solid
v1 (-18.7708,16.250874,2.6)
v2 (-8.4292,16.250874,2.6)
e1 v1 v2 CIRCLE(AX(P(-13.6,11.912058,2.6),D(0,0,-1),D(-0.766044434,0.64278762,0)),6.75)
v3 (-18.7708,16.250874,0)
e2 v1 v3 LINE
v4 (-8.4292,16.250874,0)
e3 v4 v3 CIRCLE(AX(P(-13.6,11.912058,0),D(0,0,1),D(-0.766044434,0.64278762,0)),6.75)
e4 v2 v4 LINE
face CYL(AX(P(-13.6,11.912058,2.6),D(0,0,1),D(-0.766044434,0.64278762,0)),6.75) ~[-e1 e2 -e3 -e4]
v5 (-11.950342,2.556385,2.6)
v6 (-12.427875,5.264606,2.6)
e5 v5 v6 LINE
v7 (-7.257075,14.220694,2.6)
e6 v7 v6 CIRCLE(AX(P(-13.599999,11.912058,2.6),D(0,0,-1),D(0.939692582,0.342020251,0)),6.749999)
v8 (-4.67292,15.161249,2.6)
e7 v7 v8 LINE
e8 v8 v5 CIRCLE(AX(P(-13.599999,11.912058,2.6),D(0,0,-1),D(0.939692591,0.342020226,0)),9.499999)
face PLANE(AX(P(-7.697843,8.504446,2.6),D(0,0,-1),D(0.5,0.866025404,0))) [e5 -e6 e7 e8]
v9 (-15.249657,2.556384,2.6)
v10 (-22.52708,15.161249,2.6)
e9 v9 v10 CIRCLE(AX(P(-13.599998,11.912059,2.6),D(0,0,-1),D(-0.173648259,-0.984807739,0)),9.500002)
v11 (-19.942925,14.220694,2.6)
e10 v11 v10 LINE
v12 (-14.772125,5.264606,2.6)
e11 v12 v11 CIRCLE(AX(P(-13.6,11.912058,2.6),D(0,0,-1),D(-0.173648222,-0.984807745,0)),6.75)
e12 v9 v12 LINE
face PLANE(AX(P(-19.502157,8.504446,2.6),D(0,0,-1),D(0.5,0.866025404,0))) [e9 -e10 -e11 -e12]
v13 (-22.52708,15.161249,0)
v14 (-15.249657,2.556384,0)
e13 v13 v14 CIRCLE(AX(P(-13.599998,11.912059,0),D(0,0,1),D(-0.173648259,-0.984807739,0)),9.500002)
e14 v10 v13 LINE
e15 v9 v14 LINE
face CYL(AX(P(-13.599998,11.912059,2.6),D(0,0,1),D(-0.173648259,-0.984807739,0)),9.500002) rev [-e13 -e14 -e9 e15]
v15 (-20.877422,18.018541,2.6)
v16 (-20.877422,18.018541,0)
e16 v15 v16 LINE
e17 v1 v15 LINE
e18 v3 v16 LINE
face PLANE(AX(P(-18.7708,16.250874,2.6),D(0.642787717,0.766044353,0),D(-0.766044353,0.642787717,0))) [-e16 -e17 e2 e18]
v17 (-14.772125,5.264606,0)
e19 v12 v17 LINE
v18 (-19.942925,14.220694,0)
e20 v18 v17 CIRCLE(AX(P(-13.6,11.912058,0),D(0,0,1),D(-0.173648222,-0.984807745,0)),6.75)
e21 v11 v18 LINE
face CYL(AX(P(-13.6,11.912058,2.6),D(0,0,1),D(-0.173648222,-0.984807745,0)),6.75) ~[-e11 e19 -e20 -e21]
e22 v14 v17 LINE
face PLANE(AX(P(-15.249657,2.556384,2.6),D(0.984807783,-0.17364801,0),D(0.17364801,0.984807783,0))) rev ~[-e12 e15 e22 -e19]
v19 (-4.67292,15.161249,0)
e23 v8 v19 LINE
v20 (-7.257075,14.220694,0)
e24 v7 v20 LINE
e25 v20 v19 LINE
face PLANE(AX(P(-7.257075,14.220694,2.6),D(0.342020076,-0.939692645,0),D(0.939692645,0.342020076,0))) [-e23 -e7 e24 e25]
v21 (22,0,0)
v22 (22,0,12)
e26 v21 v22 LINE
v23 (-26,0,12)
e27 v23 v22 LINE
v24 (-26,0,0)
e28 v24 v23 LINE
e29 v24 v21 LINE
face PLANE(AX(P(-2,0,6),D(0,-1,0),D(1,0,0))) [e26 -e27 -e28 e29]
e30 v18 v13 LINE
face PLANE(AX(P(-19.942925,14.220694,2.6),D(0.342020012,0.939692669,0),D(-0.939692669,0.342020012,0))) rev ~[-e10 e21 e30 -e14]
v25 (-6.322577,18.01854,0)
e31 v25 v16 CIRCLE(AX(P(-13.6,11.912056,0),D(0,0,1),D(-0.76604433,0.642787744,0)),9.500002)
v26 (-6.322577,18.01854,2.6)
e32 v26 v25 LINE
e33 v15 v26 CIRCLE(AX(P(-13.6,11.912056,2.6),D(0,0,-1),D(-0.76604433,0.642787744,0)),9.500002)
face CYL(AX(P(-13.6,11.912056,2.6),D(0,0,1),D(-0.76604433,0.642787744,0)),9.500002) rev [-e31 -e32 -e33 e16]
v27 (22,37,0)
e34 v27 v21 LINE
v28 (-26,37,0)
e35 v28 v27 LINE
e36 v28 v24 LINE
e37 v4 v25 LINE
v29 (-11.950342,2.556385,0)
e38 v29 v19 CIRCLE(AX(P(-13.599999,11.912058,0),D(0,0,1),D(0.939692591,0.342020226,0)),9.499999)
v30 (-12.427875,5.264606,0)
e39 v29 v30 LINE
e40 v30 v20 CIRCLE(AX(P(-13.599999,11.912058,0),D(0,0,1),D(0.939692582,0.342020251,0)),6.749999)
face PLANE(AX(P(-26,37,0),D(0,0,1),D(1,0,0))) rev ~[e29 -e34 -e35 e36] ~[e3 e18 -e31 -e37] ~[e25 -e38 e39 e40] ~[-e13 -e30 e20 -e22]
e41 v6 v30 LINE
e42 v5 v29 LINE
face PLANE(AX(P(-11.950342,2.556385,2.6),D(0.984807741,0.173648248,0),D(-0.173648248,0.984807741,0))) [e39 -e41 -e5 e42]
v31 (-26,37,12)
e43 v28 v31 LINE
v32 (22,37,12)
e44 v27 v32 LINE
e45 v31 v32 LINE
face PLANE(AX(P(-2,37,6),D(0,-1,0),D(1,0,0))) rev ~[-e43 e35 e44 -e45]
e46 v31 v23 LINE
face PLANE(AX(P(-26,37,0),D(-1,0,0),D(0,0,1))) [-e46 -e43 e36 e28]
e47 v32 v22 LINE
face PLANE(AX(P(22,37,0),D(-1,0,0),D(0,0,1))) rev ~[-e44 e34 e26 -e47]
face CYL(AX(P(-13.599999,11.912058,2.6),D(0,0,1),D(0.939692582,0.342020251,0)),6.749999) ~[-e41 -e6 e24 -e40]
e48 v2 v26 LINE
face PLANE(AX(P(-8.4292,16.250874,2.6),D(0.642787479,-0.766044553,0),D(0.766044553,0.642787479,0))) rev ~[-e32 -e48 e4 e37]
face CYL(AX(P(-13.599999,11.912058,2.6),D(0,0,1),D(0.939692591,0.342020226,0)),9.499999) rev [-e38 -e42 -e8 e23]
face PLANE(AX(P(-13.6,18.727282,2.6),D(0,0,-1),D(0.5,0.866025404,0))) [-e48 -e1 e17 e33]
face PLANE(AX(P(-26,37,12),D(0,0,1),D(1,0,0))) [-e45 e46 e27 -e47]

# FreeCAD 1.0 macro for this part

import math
import FreeCAD as App
import Part
import Sketcher

V = App.Vector
Q = App.Units.Quantity

doc = App.newDocument("Part")
body = doc.addObject("PartDesign::Body", "Body")
body.AllowCompound = True

sketch1 = doc.addObject("Sketcher::SketchObject", "Sketch")
body.addObject(sketch1)
sketch1.AttachmentSupport = (doc.XZ_Plane, [""])
sketch1.MapMode = "FlatFace"
sketch1.addGeometry([
    Part.ArcOfCircle(Part.Circle(V(0, 0, 0), V(0, 0, 1), 9.5), math.radians(40), math.radians(140)),
    Part.LineSegment(V(-7.3, 6.1, 0), V(-5.2, 4.3, 0)),
    Part.ArcOfCircle(Part.Circle(V(0, 0, 0), V(0, 0, 1), 6.7), math.radians(40), math.radians(140)),
    Part.LineSegment(V(5.2, 4.3, 0), V(7.3, 6.1, 0)),
    Part.ArcOfCircle(Part.Circle(V(0, 0, 0), V(0, 0, 1), 9.5), math.radians(160), math.radians(260)),
    Part.LineSegment(V(-1.6, -9.4, 0), V(-1.2, -6.6, 0)),
    Part.ArcOfCircle(Part.Circle(V(0, 0, 0), V(0, 0, 1), 6.7), math.radians(160), math.radians(260)),
    Part.LineSegment(V(-6.3, 2.3, 0), V(-8.9, 3.2, 0)),
    Part.ArcOfCircle(Part.Circle(V(0, 0, 0), V(0, 0, 1), 9.5), math.radians(-80), math.radians(20)),
    Part.LineSegment(V(8.9, 3.2, 0), V(6.3, 2.3, 0)),
    Part.ArcOfCircle(Part.Circle(V(0, 0, 0), V(0, 0, 1), 6.7), math.radians(-80), math.radians(20)),
    Part.LineSegment(V(1.2, -6.6, 0), V(1.6, -9.4, 0)),
], False)
sketch1.addConstraint([
    Sketcher.Constraint("Coincident", 0, 2, 1, 1),
    Sketcher.Constraint("Coincident", 1, 2, 2, 2),
    Sketcher.Constraint("Coincident", 2, 1, 3, 1),
    Sketcher.Constraint("Coincident", 3, 2, 0, 1),
    Sketcher.Constraint("Coincident", 4, 2, 5, 1),
    Sketcher.Constraint("Coincident", 5, 2, 6, 2),
    Sketcher.Constraint("Coincident", 6, 1, 7, 1),
    Sketcher.Constraint("Coincident", 7, 2, 4, 1),
    Sketcher.Constraint("Coincident", 8, 2, 9, 1),
    Sketcher.Constraint("Coincident", 9, 2, 10, 2),
    Sketcher.Constraint("Coincident", 10, 1, 11, 1),
    Sketcher.Constraint("Coincident", 11, 2, 8, 1),
    Sketcher.Constraint("Coincident", 0, 3, -1, 1),
    Sketcher.Constraint("Coincident", 2, 3, -1, 1),
    Sketcher.Constraint("Coincident", 4, 3, -1, 1),
    Sketcher.Constraint("Coincident", 6, 3, -1, 1),
    Sketcher.Constraint("Coincident", 8, 3, -1, 1),
    Sketcher.Constraint("Coincident", 10, 3, -1, 1),
    Sketcher.Constraint("Equal", 2, 6),
    Sketcher.Constraint("Equal", 4, 8),
    Sketcher.Constraint("Equal", 6, 10),
    Sketcher.Constraint("Horizontal", 1, 2, 2, 1),
    Sketcher.Constraint("Horizontal", 0, 2, 3, 2),
    Sketcher.Constraint("Horizontal", 7, 2, 8, 2),
    Sketcher.Constraint("Horizontal", 6, 1, 9, 2),
    Sketcher.Constraint("Horizontal", 5, 2, 10, 1),
    Sketcher.Constraint("Horizontal", 4, 2, 11, 2),
    Sketcher.Constraint("Equal", 3, 5),
    Sketcher.Constraint("Radius", 0, Q("9.499999 mm")),
    Sketcher.Constraint("Angle", 1, Q("-40.000004 deg")),
    Sketcher.Constraint("Angle", 5, Q("79.999992 deg")),
    Sketcher.Constraint("Angle", 7, Q("159.99999 deg")),
    Sketcher.Constraint("Radius", 2, Q("6.749999 mm")),
    Sketcher.Constraint("DistanceX", 1, 2, -1, 1, Q("5.1708 mm")),
    Sketcher.Constraint("DistanceX", 7, 2, -1, 1, Q("8.92708 mm")),
    Sketcher.Constraint("DistanceY", 10, 1, -1, 1, Q("6.647452 mm")),
])
pad1 = doc.addObject("PartDesign::Pad", "Pad")
body.addObject(pad1)
pad1.Profile = sketch1
pad1.Length = 20
body2 = doc.addObject("PartDesign::Body", "Body001")
body2.AllowCompound = True
doc.recompute()

body.Placement = App.Placement(V(12.4, 2.6, 25.087942), App.Rotation(V(0, -1, 0), 300))
boolean = doc.addObject("PartDesign::Boolean", "Boolean")
body2.addObject(boolean)
boolean.Type = "Fuse"
boolean.addObjects([body])
body3 = doc.addObject("PartDesign::Body", "Body002")

sketch2 = doc.addObject("Sketcher::SketchObject", "Sketch001")
body3.addObject(sketch2)
sketch2.AttachmentSupport = (doc.getObject("XY_Plane002"), [""])
sketch2.MapMode = "FlatFace"
sketch2.addGeometry([
    Part.LineSegment(V(0, 12, 0), V(0, 0, 0)),
    Part.LineSegment(V(0, 0, 0), V(48, 0, 0)),
    Part.LineSegment(V(48, 0, 0), V(48, 12, 0)),
    Part.LineSegment(V(48, 12, 0), V(0, 12, 0)),
], False)
sketch2.addConstraint([
    Sketcher.Constraint("Coincident", 0, 2, 1, 1),
    Sketcher.Constraint("Coincident", 1, 2, 2, 1),
    Sketcher.Constraint("Coincident", 2, 2, 3, 1),
    Sketcher.Constraint("Coincident", 3, 2, 0, 1),
    Sketcher.Constraint("Vertical", 0),
    Sketcher.Constraint("Horizontal", 1),
    Sketcher.Constraint("Vertical", 2),
    Sketcher.Constraint("Horizontal", 3),
    Sketcher.Constraint("Coincident", 0, 2, -1, 1),
    Sketcher.Constraint("DistanceX", 1, 1, 1, 2, Q("48 mm")),
    Sketcher.Constraint("DistanceY", 0, 2, 0, 1, Q("12 mm")),
])
pad2 = doc.addObject("PartDesign::Pad", "Pad001")
body3.addObject(pad2)
pad2.Profile = sketch2
pad2.Length = 37
doc.recompute()

boolean2 = doc.addObject("PartDesign::Boolean", "Boolean001")
body3.addObject(boolean2)
boolean2.Type = "Cut"
boolean2.addObjects([body2])
body4 = doc.addObject("PartDesign::Body", "Body003")
doc.recompute()

body3.Placement = App.Placement(V(-26, 37, 0), App.Rotation(V(1, 0, 0), 90))
boolean3 = doc.addObject("PartDesign::Boolean", "Boolean002")
body4.addObject(boolean3)
boolean3.Type = "Fuse"
boolean3.addObjects([body3])

doc.recompute()
